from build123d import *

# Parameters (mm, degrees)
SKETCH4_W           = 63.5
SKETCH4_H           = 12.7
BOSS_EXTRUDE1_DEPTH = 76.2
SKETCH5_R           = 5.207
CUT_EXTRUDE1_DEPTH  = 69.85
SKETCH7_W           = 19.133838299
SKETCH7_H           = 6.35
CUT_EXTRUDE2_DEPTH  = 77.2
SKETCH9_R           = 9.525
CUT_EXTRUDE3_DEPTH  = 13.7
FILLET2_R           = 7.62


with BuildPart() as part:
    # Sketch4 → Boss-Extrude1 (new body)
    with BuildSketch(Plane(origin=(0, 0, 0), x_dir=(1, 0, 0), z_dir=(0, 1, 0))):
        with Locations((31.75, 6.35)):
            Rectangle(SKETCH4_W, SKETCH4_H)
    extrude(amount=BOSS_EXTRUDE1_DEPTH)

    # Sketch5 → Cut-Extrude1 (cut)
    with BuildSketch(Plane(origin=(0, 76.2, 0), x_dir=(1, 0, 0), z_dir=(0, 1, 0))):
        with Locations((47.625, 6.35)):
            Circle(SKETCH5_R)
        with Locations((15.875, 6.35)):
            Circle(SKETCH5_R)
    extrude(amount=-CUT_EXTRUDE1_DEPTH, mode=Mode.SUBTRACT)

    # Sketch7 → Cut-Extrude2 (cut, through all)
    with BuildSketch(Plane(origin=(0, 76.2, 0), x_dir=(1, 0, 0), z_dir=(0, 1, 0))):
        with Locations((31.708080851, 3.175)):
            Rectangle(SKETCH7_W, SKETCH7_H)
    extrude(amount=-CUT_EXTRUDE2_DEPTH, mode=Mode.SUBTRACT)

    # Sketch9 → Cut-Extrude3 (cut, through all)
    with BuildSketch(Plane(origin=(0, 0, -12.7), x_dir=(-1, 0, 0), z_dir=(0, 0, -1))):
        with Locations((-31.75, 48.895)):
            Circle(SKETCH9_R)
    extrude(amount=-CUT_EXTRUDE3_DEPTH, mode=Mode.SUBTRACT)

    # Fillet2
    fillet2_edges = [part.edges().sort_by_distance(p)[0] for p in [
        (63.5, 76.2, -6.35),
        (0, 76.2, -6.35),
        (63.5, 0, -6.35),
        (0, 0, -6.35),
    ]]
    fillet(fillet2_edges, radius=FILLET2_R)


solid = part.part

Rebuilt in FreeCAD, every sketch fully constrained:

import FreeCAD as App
import Part
import Sketcher

V = App.Vector
Q = App.Units.Quantity


def edges_at(feature, points):
    """Names of the edges that pass closest to the given points."""
    edges = feature.Shape.Edges
    near = lambda p: min(range(len(edges)), key=lambda i: edges[i].distToShape(Part.Vertex(*p))[0])
    return sorted({f"Edge{near(p) + 1}" for p in points})

doc = App.newDocument("Part")
body = doc.addObject("PartDesign::Body", "Body")

# Sketch on XZ plane
sketch1 = doc.addObject("Sketcher::SketchObject", "Sketch")
body.addObject(sketch1)
sketch1.AttachmentSupport = (doc.XZ_Plane, [""])
sketch1.MapMode = "FlatFace"
sketch1.addGeometry(Part.LineSegment(V(0, -13, 0), V(0, 0, 0)), False)
sketch1.addGeometry(Part.LineSegment(V(0, 0, 0), V(64, 0, 0)), False)
sketch1.addGeometry(Part.LineSegment(V(64, 0, 0), V(64, -13, 0)), False)
sketch1.addGeometry(Part.LineSegment(V(64, -13, 0), V(0, -13, 0)), False)
sketch1.addConstraint(Sketcher.Constraint("Coincident", 0, 2, 1, 1))
sketch1.addConstraint(Sketcher.Constraint("Coincident", 1, 2, 2, 1))
sketch1.addConstraint(Sketcher.Constraint("Coincident", 2, 2, 3, 1))
sketch1.addConstraint(Sketcher.Constraint("Coincident", 3, 2, 0, 1))
sketch1.addConstraint(Sketcher.Constraint("Vertical", 0))
sketch1.addConstraint(Sketcher.Constraint("Horizontal", 1))
sketch1.addConstraint(Sketcher.Constraint("Vertical", 2))
sketch1.addConstraint(Sketcher.Constraint("Horizontal", 3))
sketch1.addConstraint(Sketcher.Constraint("Coincident", 0, 2, -1, 1))
sketch1.addConstraint(Sketcher.Constraint("DistanceX", 1, 1, 1, 2, Q("2.5 in")))
sketch1.addConstraint(Sketcher.Constraint("DistanceY", 0, 1, 0, 2, Q("0.5 in")))
pad1 = doc.addObject("PartDesign::Pad", "Pad")
body.addObject(pad1)
pad1.Profile = sketch1
pad1.Length = Q("3 in")
pad1.Reversed = True

# Sketch on XZ plane
sketch2 = doc.addObject("Sketcher::SketchObject", "Sketch001")
body.addObject(sketch2)
sketch2.AttachmentSupport = (doc.XZ_Plane, [""])
sketch2.MapMode = "FlatFace"
sketch2.AttachmentOffset = App.Placement(V(0, 0, -3 * 25.4), App.Rotation())
sketch2.addGeometry(Part.Circle(V(48, -6, 0), V(0, 0, 1), 5), False)
sketch2.addGeometry(Part.Circle(V(16, -6, 0), V(0, 0, 1), 5), False)
sketch2.addConstraint(Sketcher.Constraint("Equal", 0, 1))
sketch2.addConstraint(Sketcher.Constraint("Horizontal", 0, 3, 1, 3))
sketch2.addConstraint(Sketcher.Constraint("Diameter", 0, Q("0.41 in")))
sketch2.addConstraint(Sketcher.Constraint("DistanceY", 0, 3, -1, 1, Q("0.25 in")))
sketch2.addConstraint(Sketcher.Constraint("DistanceX", 1, 3, 0, 3, Q("1.25 in")))
sketch2.addConstraint(Sketcher.Constraint("DistanceX", -1, 1, 0, 3, Q("1.875 in")))
pocket1 = doc.addObject("PartDesign::Pocket", "Pocket")
body.addObject(pocket1)
pocket1.Profile = sketch2
pocket1.Length = Q("2.75 in")
pocket1.Reversed = True

# Sketch on XZ plane
sketch3 = doc.addObject("Sketcher::SketchObject", "Sketch002")
body.addObject(sketch3)
sketch3.AttachmentSupport = (doc.XZ_Plane, [""])
sketch3.MapMode = "FlatFace"
sketch3.AttachmentOffset = App.Placement(V(0, 0, -3 * 25.4), App.Rotation())
sketch3.addGeometry(Part.LineSegment(V(22, -6, 0), V(22, 0, 0)), False)
sketch3.addGeometry(Part.LineSegment(V(22, 0, 0), V(41, 0, 0)), False)
sketch3.addGeometry(Part.LineSegment(V(41, 0, 0), V(41, -6, 0)), False)
sketch3.addGeometry(Part.LineSegment(V(41, -6, 0), V(22, -6, 0)), False)
sketch3.addConstraint(Sketcher.Constraint("Coincident", 0, 2, 1, 1))
sketch3.addConstraint(Sketcher.Constraint("Coincident", 1, 2, 2, 1))
sketch3.addConstraint(Sketcher.Constraint("Coincident", 2, 2, 3, 1))
sketch3.addConstraint(Sketcher.Constraint("Coincident", 3, 2, 0, 1))
sketch3.addConstraint(Sketcher.Constraint("Vertical", 0))
sketch3.addConstraint(Sketcher.Constraint("Horizontal", 1))
sketch3.addConstraint(Sketcher.Constraint("Vertical", 2))
sketch3.addConstraint(Sketcher.Constraint("Horizontal", 3))
sketch3.addConstraint(Sketcher.Constraint("PointOnObject", 0, 2, -1))
sketch3.addConstraint(Sketcher.Constraint("DistanceY", 0, 1, 0, 2, Q("0.25 in")))
sketch3.addConstraint(Sketcher.Constraint("DistanceX", -1, 1, 1, 2, Q("1.625 in")))
sketch3.addConstraint(Sketcher.Constraint("DistanceX", 1, 1, 1, 2, 19.133838))
pocket2 = doc.addObject("PartDesign::Pocket", "Pocket001")
body.addObject(pocket2)
pocket2.Profile = sketch3
pocket2.Type = "ThroughAll"
pocket2.Reversed = True

# Sketch on XY plane
sketch4 = doc.addObject("Sketcher::SketchObject", "Sketch003")
body.addObject(sketch4)
sketch4.AttachmentSupport = (doc.XY_Plane, [""])
sketch4.MapMode = "FlatFace"
sketch4.AttachmentOffset = App.Placement(V(0, 0, -0.5 * 25.4), App.Rotation())
sketch4.addGeometry(Part.Circle(V(32, 49, 0), V(0, 0, 1), 10), False)
sketch4.addConstraint(Sketcher.Constraint("Diameter", 0, Q("0.75 in")))
sketch4.addConstraint(Sketcher.Constraint("DistanceX", -1, 1, 0, 3, Q("1.25 in")))
sketch4.addConstraint(Sketcher.Constraint("DistanceY", -1, 1, 0, 3, Q("1.925 in")))
pocket3 = doc.addObject("PartDesign::Pocket", "Pocket002")
body.addObject(pocket3)
pocket3.Profile = sketch4
pocket3.Type = "ThroughAll"
pocket3.Reversed = True
doc.recompute()

fillet = doc.addObject("PartDesign::Fillet", "Fillet")
body.addObject(fillet)
fillet.Base = (pocket3, edges_at(pocket3, [
    (63.5, 76.2, -6.35),
    (0, 76.2, -6.35),
    (63.5, 0, -6.35),
    (0, 0, -6.35),
]))
fillet.Radius = Q("0.3 in")

doc.recompute()
